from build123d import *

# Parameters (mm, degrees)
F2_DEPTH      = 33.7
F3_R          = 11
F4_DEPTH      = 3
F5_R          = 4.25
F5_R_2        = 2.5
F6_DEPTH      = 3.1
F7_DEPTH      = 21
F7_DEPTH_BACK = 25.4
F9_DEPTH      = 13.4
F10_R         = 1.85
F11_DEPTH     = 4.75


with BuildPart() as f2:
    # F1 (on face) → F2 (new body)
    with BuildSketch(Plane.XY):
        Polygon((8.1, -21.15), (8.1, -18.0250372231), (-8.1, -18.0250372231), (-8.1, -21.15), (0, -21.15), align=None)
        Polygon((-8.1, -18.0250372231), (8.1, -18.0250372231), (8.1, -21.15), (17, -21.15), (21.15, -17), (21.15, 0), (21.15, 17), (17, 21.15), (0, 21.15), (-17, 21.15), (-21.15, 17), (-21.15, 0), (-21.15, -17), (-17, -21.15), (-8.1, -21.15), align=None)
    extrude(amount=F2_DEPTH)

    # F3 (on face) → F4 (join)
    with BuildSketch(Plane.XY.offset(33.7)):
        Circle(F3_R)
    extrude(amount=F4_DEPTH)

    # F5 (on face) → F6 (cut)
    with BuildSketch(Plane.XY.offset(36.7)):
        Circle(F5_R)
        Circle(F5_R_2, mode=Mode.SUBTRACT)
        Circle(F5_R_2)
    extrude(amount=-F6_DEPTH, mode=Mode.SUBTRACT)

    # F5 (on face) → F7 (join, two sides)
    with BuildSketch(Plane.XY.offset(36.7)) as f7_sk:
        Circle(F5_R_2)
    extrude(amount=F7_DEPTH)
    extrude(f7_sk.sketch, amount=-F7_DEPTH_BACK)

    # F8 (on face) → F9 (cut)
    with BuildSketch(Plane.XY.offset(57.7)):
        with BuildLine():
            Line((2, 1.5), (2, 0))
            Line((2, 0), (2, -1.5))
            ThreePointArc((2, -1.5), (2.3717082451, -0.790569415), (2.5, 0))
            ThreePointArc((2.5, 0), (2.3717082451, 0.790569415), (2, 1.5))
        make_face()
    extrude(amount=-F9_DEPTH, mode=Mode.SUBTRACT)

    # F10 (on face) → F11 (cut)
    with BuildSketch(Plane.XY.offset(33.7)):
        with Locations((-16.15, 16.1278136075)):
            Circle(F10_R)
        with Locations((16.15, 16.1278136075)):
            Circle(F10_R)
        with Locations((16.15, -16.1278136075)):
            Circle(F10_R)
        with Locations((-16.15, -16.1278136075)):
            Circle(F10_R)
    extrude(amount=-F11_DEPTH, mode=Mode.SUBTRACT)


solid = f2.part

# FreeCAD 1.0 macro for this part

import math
import FreeCAD as App
import Part
import Sketcher
from FreeCAD import Vector


def add_polygon(sketch, points):
    """Adds a closed chain of lines whose ends are joined by coincident constraints."""
    first, n = sketch.GeometryCount, len(points)
    for a, b in zip(points, points[1:] + points[:1]):
        sketch.addGeometry(Part.LineSegment(App.Vector(*a, 0), App.Vector(*b, 0)), False)
    for i in range(n):
        sketch.addConstraint(Sketcher.Constraint("Coincident", first + i, 2, first + (i + 1) % n, 1))

doc = App.newDocument("Part")
body = doc.addObject("PartDesign::Body", "Body")

# Sketch on XY plane
sketch1 = body.newObject("Sketcher::SketchObject", "Sketch")
sketch1.AttachmentSupport = (doc.getObject("XY_Plane"), [""])
sketch1.MapMode = "FlatFace"
add_polygon(sketch1, [(17, -21), (21, -17), (21, 17), (17, 21), (-17, 21), (-21, 17), (-21, -17), (-17, -21)])  # lines 0-7
sketch1.addConstraint([
    Sketcher.Constraint("Vertical", 1),
    Sketcher.Constraint("Horizontal", 3),
    Sketcher.Constraint("Vertical", 5),
    Sketcher.Constraint("Horizontal", 7),
    Sketcher.Constraint("Symmetric", 0, 2, 4, 2, -1, 1),
    Sketcher.Constraint("Symmetric", 2, 2, 6, 2, -1, 1),
    Sketcher.Constraint("Perpendicular", 0, 2),
    Sketcher.Constraint("Perpendicular", 2, 4),
    Sketcher.Constraint("Perpendicular", 4, 6),
    Sketcher.Constraint("Horizontal", 1, 2, 4, 2),
    Sketcher.Constraint("Vertical", 3, 2, 6, 2),
    Sketcher.Constraint("Equal", 7, 1),
    Sketcher.Constraint("DistanceX", 3, 2, 3, 1, 34.0),
    Sketcher.Constraint("DistanceX", 4, 2, 1, 2, 42.3),
])
pad1 = body.newObject("PartDesign::Pad", "Pad")
pad1.Profile = sketch1
pad1.Length = 33.7

# Sketch on XY plane
sketch2 = body.newObject("Sketcher::SketchObject", "Sketch001")
sketch2.AttachmentSupport = (doc.getObject("XY_Plane"), [""])
sketch2.MapMode = "FlatFace"
sketch2.AttachmentOffset = App.Placement(Vector(0, 0, 33.7), App.Rotation())
sketch2.addGeometry(Part.Circle(Vector(0, 0, 0), Vector(0, 0, 1), 11), False)
sketch2.addConstraint([
    Sketcher.Constraint("Coincident", 0, 3, -1, 1),
    Sketcher.Constraint("Diameter", 0, 22.0),
])
pad2 = body.newObject("PartDesign::Pad", "Pad001")
pad2.Profile = sketch2
pad2.Length = 3

# Sketch on XY plane
sketch3 = body.newObject("Sketcher::SketchObject", "Sketch002")
sketch3.AttachmentSupport = (doc.getObject("XY_Plane"), [""])
sketch3.MapMode = "FlatFace"
sketch3.AttachmentOffset = App.Placement(Vector(0, 0, 36.7), App.Rotation())
sketch3.addGeometry(Part.Circle(Vector(0, 0, 0), Vector(0, 0, 1), 4.2), False)
sketch3.addConstraint([
    Sketcher.Constraint("Coincident", 0, 3, -1, 1),
    Sketcher.Constraint("Diameter", 0, 8.5),
])
pocket1 = body.newObject("PartDesign::Pocket", "Pocket")
pocket1.Profile = sketch3
pocket1.Length = 3.1

# Sketch on XY plane
sketch4 = body.newObject("Sketcher::SketchObject", "Sketch003")
sketch4.AttachmentSupport = (doc.getObject("XY_Plane"), [""])
sketch4.MapMode = "FlatFace"
sketch4.AttachmentOffset = App.Placement(Vector(0, 0, 36.7), App.Rotation())
sketch4.addGeometry(Part.Circle(Vector(0, 0, 0), Vector(0, 0, 1), 2.5), False)
sketch4.addConstraint([
    Sketcher.Constraint("Coincident", 0, 3, -1, 1),
    Sketcher.Constraint("Diameter", 0, 5.0),
])
pad3 = body.newObject("PartDesign::Pad", "Pad002")
pad3.Profile = sketch4
pad3.Type = "TwoLengths"
pad3.Length = 21
pad3.Length2 = 25.4

# Sketch on XY plane
sketch5 = body.newObject("Sketcher::SketchObject", "Sketch004")
sketch5.AttachmentSupport = (doc.getObject("XY_Plane"), [""])
sketch5.MapMode = "FlatFace"
sketch5.AttachmentOffset = App.Placement(Vector(0, 0, 57.7), App.Rotation())
sketch5.addGeometry([
    Part.LineSegment(Vector(2, 1.5, 0), Vector(2, -1.5, 0)),
    Part.ArcOfCircle(Part.Circle(Vector(0, 0, 0), Vector(0, 0, 1), 2.5), math.radians(-37), math.radians(0)),
    Part.ArcOfCircle(Part.Circle(Vector(0, 0, 0), Vector(0, 0, 1), 2.5), math.radians(0), math.radians(37)),
], False)
sketch5.addConstraint([
    Sketcher.Constraint("Coincident", 0, 2, 1, 1),
    Sketcher.Constraint("Tangent", 1, 2, 2, 1),
    Sketcher.Constraint("Coincident", 2, 2, 0, 1),
    Sketcher.Constraint("Vertical", 0),
    Sketcher.Constraint("Coincident", 1, 3, -1, 1),
    Sketcher.Constraint("Equal", 1, 2),
    Sketcher.Constraint("PointOnObject", 1, 2, -1),
    Sketcher.Constraint("Radius", 1, 2.5),
    Sketcher.Constraint("DistanceY", 0, 2, 0, 1, 3.0),
])
pocket2 = body.newObject("PartDesign::Pocket", "Pocket001")
pocket2.Profile = sketch5
pocket2.Length = 13.4

# Sketch on XY plane
sketch6 = body.newObject("Sketcher::SketchObject", "Sketch005")
sketch6.AttachmentSupport = (doc.getObject("XY_Plane"), [""])
sketch6.MapMode = "FlatFace"
sketch6.AttachmentOffset = App.Placement(Vector(0, 0, 33.7), App.Rotation())
sketch6.addGeometry([
    Part.Circle(Vector(-16.1, 16.1, 0), Vector(0, 0, 1), 1.9),
    Part.Circle(Vector(16.1, 16.1, 0), Vector(0, 0, 1), 1.9),
    Part.Circle(Vector(16.1, -16.1, 0), Vector(0, 0, 1), 1.9),
    Part.Circle(Vector(-16.1, -16.1, 0), Vector(0, 0, 1), 1.9),
], False)
sketch6.addConstraint([
    Sketcher.Constraint("Equal", 0, 1),
    Sketcher.Constraint("Equal", 1, 2),
    Sketcher.Constraint("Equal", 2, 3),
    Sketcher.Constraint("Symmetric", 0, 3, 2, 3, -1, 1),
    Sketcher.Constraint("Symmetric", 1, 3, 3, 3, -1, 1),
    Sketcher.Constraint("Symmetric", 0, 3, 1, 3, -2),
    Sketcher.Constraint("Diameter", 0, 3.7),
    Sketcher.Constraint("DistanceX", 0, 3, 1, 3, 32.3),
    Sketcher.Constraint("DistanceY", -1, 1, 0, 3, 16.127814),
])
pocket3 = body.newObject("PartDesign::Pocket", "Pocket002")
pocket3.Profile = sketch6
pocket3.Length = 4.75

doc.recompute()
